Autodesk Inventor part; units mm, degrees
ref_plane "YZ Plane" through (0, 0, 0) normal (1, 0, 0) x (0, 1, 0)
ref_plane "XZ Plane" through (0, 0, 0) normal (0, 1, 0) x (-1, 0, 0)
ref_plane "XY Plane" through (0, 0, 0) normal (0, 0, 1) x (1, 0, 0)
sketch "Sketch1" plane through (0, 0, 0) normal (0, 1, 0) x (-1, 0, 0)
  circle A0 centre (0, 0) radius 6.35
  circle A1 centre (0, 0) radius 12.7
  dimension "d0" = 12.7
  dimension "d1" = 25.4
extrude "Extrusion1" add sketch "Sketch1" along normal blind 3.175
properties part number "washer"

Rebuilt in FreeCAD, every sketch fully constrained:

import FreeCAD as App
import Part
import Sketcher
Q = App.Units.Quantity

doc = App.newDocument("Part")
params = doc.addObject("Spreadsheet::Sheet", "Params")
for row, (alias, value) in enumerate([
    ("sketch1_diameter", "1 in"),
    ("sketch1_diameter2", "0.5 in"),
    ("pad1_length", "0.125 in"),
], start=1):
    params.set(f"A{row}", alias)
    params.set(f"B{row}", "=" + value)
    params.setAlias(f"B{row}", alias)

body = doc.addObject("PartDesign::Body", "Body")

sketch1 = doc.addObject("Sketcher::SketchObject", "Sketch")
body.addObject(sketch1)
sketch1.AttachmentSupport = (doc.XZ_Plane, [""])
sketch1.MapMode = "FlatFace"
sketch1.addGeometry([
    Part.Circle(App.Vector(0, 0, 0), App.Vector(0, 0, 1), 13),
    Part.Circle(App.Vector(0, 0, 0), App.Vector(0, 0, 1), 6),
], False)
sketch1.addConstraint([
    Sketcher.Constraint("Coincident", 0, 3, -1, 1),
    Sketcher.Constraint("Coincident", 1, 3, -1, 1),
    Sketcher.Constraint("Diameter", 0, Q("1 in")),
    Sketcher.Constraint("Diameter", 1, Q("0.5 in")),
])
sketch1.setExpression("Constraints[2]", "Params.sketch1_diameter")
sketch1.setExpression("Constraints[3]", "Params.sketch1_diameter2")
pad1 = doc.addObject("PartDesign::Pad", "Pad")
body.addObject(pad1)
pad1.Profile = sketch1
pad1.setExpression("Length", "Params.pad1_length")
pad1.Reversed = True

doc.recompute()
